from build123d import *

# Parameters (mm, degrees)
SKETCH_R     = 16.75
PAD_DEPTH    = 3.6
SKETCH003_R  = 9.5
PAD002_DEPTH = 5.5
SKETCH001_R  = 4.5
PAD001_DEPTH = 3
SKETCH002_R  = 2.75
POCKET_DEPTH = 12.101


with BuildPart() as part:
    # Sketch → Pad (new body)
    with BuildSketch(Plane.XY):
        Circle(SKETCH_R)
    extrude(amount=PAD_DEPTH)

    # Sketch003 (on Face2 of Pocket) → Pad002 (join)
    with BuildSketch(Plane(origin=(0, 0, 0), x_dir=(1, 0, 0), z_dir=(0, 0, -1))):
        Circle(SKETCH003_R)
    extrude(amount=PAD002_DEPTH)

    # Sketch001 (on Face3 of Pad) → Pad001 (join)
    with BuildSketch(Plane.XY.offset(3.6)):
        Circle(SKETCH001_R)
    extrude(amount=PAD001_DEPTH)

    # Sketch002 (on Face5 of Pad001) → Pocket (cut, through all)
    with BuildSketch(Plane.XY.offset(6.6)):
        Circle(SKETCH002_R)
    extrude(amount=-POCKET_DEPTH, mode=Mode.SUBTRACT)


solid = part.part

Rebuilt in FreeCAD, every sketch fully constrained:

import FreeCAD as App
import Part
import Sketcher

doc = App.newDocument("Part")
body = doc.addObject("PartDesign::Body", "Body")

sketch1 = body.newObject("Sketcher::SketchObject", "Sketch")
sketch1.AttachmentSupport = (doc.getObject("XY_Plane"), [""])
sketch1.MapMode = "FlatFace"
sketch1.addGeometry(Part.Circle(App.Vector(0, 0, 0), App.Vector(0, 0, 1), 17), False)
sketch1.addConstraint(Sketcher.Constraint("Coincident", 0, 3, -1, 1))
sketch1.addConstraint(Sketcher.Constraint("Diameter", 0, 33.5))
pad1 = body.newObject("PartDesign::Pad", "Pad")
pad1.Profile = sketch1
pad1.Length = 3.6

sketch2 = body.newObject("Sketcher::SketchObject", "Sketch001")
sketch2.AttachmentSupport = (doc.getObject("XY_Plane"), [""])
sketch2.MapMode = "FlatFace"
sketch2.addGeometry(Part.Circle(App.Vector(0, 0, 0), App.Vector(0, 0, 1), 10), False)
sketch2.addConstraint(Sketcher.Constraint("Coincident", 0, 3, -1, 1))
sketch2.addConstraint(Sketcher.Constraint("Diameter", 0, 19.0))
pad2 = body.newObject("PartDesign::Pad", "Pad001")
pad2.Profile = sketch2
pad2.Length = 5.5
pad2.Reversed = True

sketch3 = body.newObject("Sketcher::SketchObject", "Sketch002")
sketch3.AttachmentSupport = (doc.getObject("XY_Plane"), [""])
sketch3.MapMode = "FlatFace"
sketch3.AttachmentOffset = App.Placement(App.Vector(0, 0, 3.6), App.Rotation())
sketch3.addGeometry(Part.Circle(App.Vector(0, 0, 0), App.Vector(0, 0, 1), 4.5), False)
sketch3.addConstraint(Sketcher.Constraint("Coincident", 0, 3, -1, 1))
sketch3.addConstraint(Sketcher.Constraint("Diameter", 0, 9.0))
pad3 = body.newObject("PartDesign::Pad", "Pad002")
pad3.Profile = sketch3
pad3.Length = 3

sketch4 = body.newObject("Sketcher::SketchObject", "Sketch003")
sketch4.AttachmentSupport = (doc.getObject("XY_Plane"), [""])
sketch4.MapMode = "FlatFace"
sketch4.AttachmentOffset = App.Placement(App.Vector(0, 0, 6.6), App.Rotation())
sketch4.addGeometry(Part.Circle(App.Vector(0, 0, 0), App.Vector(0, 0, 1), 2.8), False)
sketch4.addConstraint(Sketcher.Constraint("Coincident", 0, 3, -1, 1))
sketch4.addConstraint(Sketcher.Constraint("Diameter", 0, 5.5))
pocket1 = body.newObject("PartDesign::Pocket", "Pocket")
pocket1.Profile = sketch4
pocket1.Type = "ThroughAll"

doc.recompute()
